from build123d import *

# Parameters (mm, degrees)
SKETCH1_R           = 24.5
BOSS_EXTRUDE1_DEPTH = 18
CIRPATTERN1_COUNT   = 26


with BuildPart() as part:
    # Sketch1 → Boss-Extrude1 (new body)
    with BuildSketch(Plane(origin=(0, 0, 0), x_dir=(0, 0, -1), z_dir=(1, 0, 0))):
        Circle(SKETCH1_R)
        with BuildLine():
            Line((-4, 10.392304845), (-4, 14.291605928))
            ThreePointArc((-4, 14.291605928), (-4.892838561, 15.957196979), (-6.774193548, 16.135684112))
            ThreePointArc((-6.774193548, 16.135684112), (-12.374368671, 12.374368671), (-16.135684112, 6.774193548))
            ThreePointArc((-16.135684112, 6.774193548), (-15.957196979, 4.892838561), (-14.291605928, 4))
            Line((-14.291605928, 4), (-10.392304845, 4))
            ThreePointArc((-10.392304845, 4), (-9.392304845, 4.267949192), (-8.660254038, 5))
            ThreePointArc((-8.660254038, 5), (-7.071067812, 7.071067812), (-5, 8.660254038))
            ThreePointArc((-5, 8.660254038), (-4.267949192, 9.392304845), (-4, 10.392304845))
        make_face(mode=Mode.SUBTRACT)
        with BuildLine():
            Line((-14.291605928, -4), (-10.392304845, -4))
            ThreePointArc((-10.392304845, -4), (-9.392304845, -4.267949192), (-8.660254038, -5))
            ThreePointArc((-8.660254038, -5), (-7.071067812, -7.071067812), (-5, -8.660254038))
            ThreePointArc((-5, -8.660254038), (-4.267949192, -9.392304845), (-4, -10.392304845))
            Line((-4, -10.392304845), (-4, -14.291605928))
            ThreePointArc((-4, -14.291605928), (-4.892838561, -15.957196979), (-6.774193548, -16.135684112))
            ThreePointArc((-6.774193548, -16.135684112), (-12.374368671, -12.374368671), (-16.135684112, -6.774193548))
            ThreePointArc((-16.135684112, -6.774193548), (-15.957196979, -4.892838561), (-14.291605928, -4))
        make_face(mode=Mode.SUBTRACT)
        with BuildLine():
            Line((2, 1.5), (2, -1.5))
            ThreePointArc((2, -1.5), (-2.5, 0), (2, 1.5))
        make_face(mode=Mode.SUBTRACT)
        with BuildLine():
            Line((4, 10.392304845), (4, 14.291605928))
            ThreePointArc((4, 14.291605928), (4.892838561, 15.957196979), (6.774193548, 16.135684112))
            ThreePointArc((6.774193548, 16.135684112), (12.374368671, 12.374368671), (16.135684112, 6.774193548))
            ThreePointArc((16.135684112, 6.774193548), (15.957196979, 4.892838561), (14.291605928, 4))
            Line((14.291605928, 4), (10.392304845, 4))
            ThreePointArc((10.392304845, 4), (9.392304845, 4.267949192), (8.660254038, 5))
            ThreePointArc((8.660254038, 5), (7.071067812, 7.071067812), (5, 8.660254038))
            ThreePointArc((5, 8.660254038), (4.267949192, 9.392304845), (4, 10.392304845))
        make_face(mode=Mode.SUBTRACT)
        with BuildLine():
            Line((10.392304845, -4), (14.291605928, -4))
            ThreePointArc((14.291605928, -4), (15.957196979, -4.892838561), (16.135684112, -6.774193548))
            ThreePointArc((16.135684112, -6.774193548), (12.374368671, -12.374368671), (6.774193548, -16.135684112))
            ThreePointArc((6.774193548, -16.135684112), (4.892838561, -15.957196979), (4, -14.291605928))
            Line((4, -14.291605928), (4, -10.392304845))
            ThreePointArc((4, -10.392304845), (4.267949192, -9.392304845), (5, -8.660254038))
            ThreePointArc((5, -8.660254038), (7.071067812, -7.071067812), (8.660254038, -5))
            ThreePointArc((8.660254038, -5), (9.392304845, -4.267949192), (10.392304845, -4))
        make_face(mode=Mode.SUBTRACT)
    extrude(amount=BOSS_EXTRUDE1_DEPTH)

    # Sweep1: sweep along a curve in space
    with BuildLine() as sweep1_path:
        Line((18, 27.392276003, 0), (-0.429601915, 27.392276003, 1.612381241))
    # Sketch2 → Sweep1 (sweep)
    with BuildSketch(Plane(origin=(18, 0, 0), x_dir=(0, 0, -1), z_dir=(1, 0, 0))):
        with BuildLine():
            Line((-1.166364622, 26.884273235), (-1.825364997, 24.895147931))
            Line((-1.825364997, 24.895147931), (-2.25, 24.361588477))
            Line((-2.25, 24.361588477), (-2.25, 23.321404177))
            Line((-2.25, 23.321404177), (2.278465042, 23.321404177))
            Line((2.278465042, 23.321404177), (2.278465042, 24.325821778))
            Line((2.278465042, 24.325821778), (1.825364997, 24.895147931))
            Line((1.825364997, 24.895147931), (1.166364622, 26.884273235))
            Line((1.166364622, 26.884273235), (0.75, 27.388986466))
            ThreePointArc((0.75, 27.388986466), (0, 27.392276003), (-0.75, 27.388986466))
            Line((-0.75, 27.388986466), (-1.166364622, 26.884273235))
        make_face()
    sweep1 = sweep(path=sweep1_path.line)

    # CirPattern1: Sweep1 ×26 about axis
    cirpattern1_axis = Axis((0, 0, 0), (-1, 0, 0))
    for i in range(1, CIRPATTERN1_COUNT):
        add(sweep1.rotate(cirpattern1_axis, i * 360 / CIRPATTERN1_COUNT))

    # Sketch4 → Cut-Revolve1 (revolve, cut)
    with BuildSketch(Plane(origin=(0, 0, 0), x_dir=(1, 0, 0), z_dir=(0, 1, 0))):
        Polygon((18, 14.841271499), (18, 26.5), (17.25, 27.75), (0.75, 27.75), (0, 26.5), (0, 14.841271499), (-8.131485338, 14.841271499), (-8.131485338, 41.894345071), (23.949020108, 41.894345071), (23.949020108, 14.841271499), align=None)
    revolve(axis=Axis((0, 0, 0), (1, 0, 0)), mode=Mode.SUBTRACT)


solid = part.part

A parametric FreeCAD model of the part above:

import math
import FreeCAD as App
import Part
import Sketcher
from FreeCAD import Vector


def add_polygon(sketch, points):
    """Adds a closed chain of lines whose ends are joined by coincident constraints."""
    first, n = sketch.GeometryCount, len(points)
    for a, b in zip(points, points[1:] + points[:1]):
        sketch.addGeometry(Part.LineSegment(App.Vector(*a, 0), App.Vector(*b, 0)), False)
    for i in range(n):
        sketch.addConstraint(Sketcher.Constraint("Coincident", first + i, 2, first + (i + 1) % n, 1))

doc = App.newDocument("Part")
body = doc.addObject("PartDesign::Body", "Body")

# Sketch on YZ plane
sketch1 = body.newObject("Sketcher::SketchObject", "Sketch")
sketch1.AttachmentSupport = (doc.getObject("YZ_Plane"), [""])
sketch1.MapMode = "FlatFace"
sketch1.addGeometry([
    Part.Circle(Vector(0, 0, 0), Vector(0, 0, 1), 24.5),  # 0
    Part.ArcOfCircle(Part.Circle(Vector(-6, 14.291606, 0), Vector(0, 0, 1), 2), math.radians(0), math.radians(112.773972)),  # 1
    Part.LineSegment(Vector(-4, 14.291606, 0), Vector(-4, 10.392305, 0)),  # 2
    Part.ArcOfCircle(Part.Circle(Vector(-6, 10.392305, 0), Vector(0, 0, 1), 2), math.radians(-60), math.radians(0)),  # 3
    Part.ArcOfCircle(Part.Circle(Vector(0, 0, 0), Vector(0, 0, 1), 10), math.radians(120), math.radians(150)),  # 4
    Part.ArcOfCircle(Part.Circle(Vector(-10.392305, 6, 0), Vector(0, 0, 1), 2), math.radians(-90), math.radians(-30)),  # 5
    Part.LineSegment(Vector(-10.392305, 4, 0), Vector(-14.291606, 4, 0)),  # 6
    Part.ArcOfCircle(Part.Circle(Vector(-14.291606, 6, 0), Vector(0, 0, 1), 2), math.radians(157.226028), math.radians(270)),  # 7
    Part.ArcOfCircle(Part.Circle(Vector(0, 0, 0), Vector(0, 0, 1), 17.5), math.radians(112.773972), math.radians(157.226028)),  # 8
    Part.ArcOfCircle(Part.Circle(Vector(-6, -10.392305, 0), Vector(0, 0, 1), 2), math.radians(0), math.radians(60)),  # 9
    Part.LineSegment(Vector(-4, -10.392305, 0), Vector(-4, -14.291606, 0)),  # 10
    Part.ArcOfCircle(Part.Circle(Vector(-6, -14.291606, 0), Vector(0, 0, 1), 2), math.radians(-112.773972), math.radians(0)),  # 11
    Part.ArcOfCircle(Part.Circle(Vector(0, 0, 0), Vector(0, 0, 1), 17.5), math.radians(-157.226028), math.radians(-112.773972)),  # 12
    Part.ArcOfCircle(Part.Circle(Vector(-14.291606, -6, 0), Vector(0, 0, 1), 2), math.radians(90), math.radians(202.773972)),  # 13
    Part.LineSegment(Vector(-14.291606, -4, 0), Vector(-10.392305, -4, 0)),  # 14
    Part.ArcOfCircle(Part.Circle(Vector(-10.392305, -6, 0), Vector(0, 0, 1), 2), math.radians(30), math.radians(90)),  # 15
    Part.ArcOfCircle(Part.Circle(Vector(0, 0, 0), Vector(0, 0, 1), 10), math.radians(-150), math.radians(-120)),  # 16
    Part.ArcOfCircle(Part.Circle(Vector(0, 0, 0), Vector(0, 0, 1), 2.5), math.radians(-53.130102), math.radians(233.130102)),  # 17
    Part.LineSegment(Vector(1.5, -2, 0), Vector(-1.5, -2, 0)),  # 18
    Part.LineSegment(Vector(14.291606, 4, 0), Vector(10.392305, 4, 0)),  # 19
    Part.ArcOfCircle(Part.Circle(Vector(10.392305, 6, 0), Vector(0, 0, 1), 2), math.radians(-150), math.radians(-90)),  # 20
    Part.ArcOfCircle(Part.Circle(Vector(0, 0, 0), Vector(0, 0, 1), 10), math.radians(30), math.radians(60)),  # 21
    Part.ArcOfCircle(Part.Circle(Vector(6, 10.392305, 0), Vector(0, 0, 1), 2), math.radians(180), math.radians(240)),  # 22
    Part.LineSegment(Vector(4, 10.392305, 0), Vector(4, 14.291606, 0)),  # 23
    Part.ArcOfCircle(Part.Circle(Vector(6, 14.291606, 0), Vector(0, 0, 1), 2), math.radians(67.226028), math.radians(180)),  # 24
    Part.ArcOfCircle(Part.Circle(Vector(0, 0, 0), Vector(0, 0, 1), 17.5), math.radians(22.773972), math.radians(67.226028)),  # 25
    Part.ArcOfCircle(Part.Circle(Vector(14.291606, 6, 0), Vector(0, 0, 1), 2), math.radians(-90), math.radians(22.773972)),  # 26
    Part.ArcOfCircle(Part.Circle(Vector(10.392305, -6, 0), Vector(0, 0, 1), 2), math.radians(90), math.radians(150)),  # 27
    Part.LineSegment(Vector(10.392305, -4, 0), Vector(14.291606, -4, 0)),  # 28
    Part.ArcOfCircle(Part.Circle(Vector(14.291606, -6, 0), Vector(0, 0, 1), 2), math.radians(-22.773972), math.radians(90)),  # 29
    Part.ArcOfCircle(Part.Circle(Vector(0, 0, 0), Vector(0, 0, 1), 17.5), math.radians(-67.226028), math.radians(-22.773972)),  # 30
    Part.ArcOfCircle(Part.Circle(Vector(6, -14.291606, 0), Vector(0, 0, 1), 2), math.radians(180), math.radians(292.773972)),  # 31
    Part.LineSegment(Vector(4, -14.291606, 0), Vector(4, -10.392305, 0)),  # 32
    Part.ArcOfCircle(Part.Circle(Vector(6, -10.392305, 0), Vector(0, 0, 1), 2), math.radians(120), math.radians(180)),  # 33
    Part.ArcOfCircle(Part.Circle(Vector(0, 0, 0), Vector(0, 0, 1), 10), math.radians(-60), math.radians(-30)),  # 34
], False)
sketch1.addConstraint([
    Sketcher.Constraint("Tangent", 1, 1, 2, 1),
    Sketcher.Constraint("Tangent", 2, 2, 3, 2),
    Sketcher.Constraint("Tangent", 3, 1, 4, 1),
    Sketcher.Constraint("Tangent", 4, 2, 5, 2),
    Sketcher.Constraint("Tangent", 5, 1, 6, 1),
    Sketcher.Constraint("Tangent", 6, 2, 7, 2),
    Sketcher.Constraint("Tangent", 7, 1, 8, 2),
    Sketcher.Constraint("Tangent", 8, 1, 1, 2),
    Sketcher.Constraint("Tangent", 9, 1, 10, 1),
    Sketcher.Constraint("Tangent", 10, 2, 11, 2),
    Sketcher.Constraint("Tangent", 11, 1, 12, 2),
    Sketcher.Constraint("Tangent", 12, 1, 13, 2),
    Sketcher.Constraint("Tangent", 13, 1, 14, 1),
    Sketcher.Constraint("Tangent", 14, 2, 15, 2),
    Sketcher.Constraint("Tangent", 15, 1, 16, 1),
    Sketcher.Constraint("Tangent", 16, 2, 9, 2),
    Sketcher.Constraint("Coincident", 17, 1, 18, 1),
    Sketcher.Constraint("Coincident", 18, 2, 17, 2),
    Sketcher.Constraint("Tangent", 19, 2, 20, 2),
    Sketcher.Constraint("Tangent", 20, 1, 21, 1),
    Sketcher.Constraint("Tangent", 21, 2, 22, 2),
    Sketcher.Constraint("Tangent", 22, 1, 23, 1),
    Sketcher.Constraint("Tangent", 23, 2, 24, 2),
    Sketcher.Constraint("Tangent", 24, 1, 25, 2),
    Sketcher.Constraint("Tangent", 25, 1, 26, 2),
    Sketcher.Constraint("Tangent", 26, 1, 19, 1),
    Sketcher.Constraint("Tangent", 27, 1, 28, 1),
    Sketcher.Constraint("Tangent", 28, 2, 29, 2),
    Sketcher.Constraint("Tangent", 29, 1, 30, 2),
    Sketcher.Constraint("Tangent", 30, 1, 31, 2),
    Sketcher.Constraint("Tangent", 31, 1, 32, 1),
    Sketcher.Constraint("Tangent", 32, 2, 33, 2),
    Sketcher.Constraint("Tangent", 33, 1, 34, 1),
    Sketcher.Constraint("Tangent", 34, 2, 27, 2),
    Sketcher.Constraint("Vertical", 2),
    Sketcher.Constraint("Horizontal", 6),
    Sketcher.Constraint("Vertical", 10),
    Sketcher.Constraint("Horizontal", 14),
    Sketcher.Constraint("Horizontal", 18),
    Sketcher.Constraint("Horizontal", 19),
    Sketcher.Constraint("Vertical", 23),
    Sketcher.Constraint("Horizontal", 28),
    Sketcher.Constraint("Vertical", 32),
    Sketcher.Constraint("Coincident", 0, 3, -1, 1),
    Sketcher.Constraint("Coincident", 4, 3, -1, 1),
    Sketcher.Constraint("Coincident", 8, 3, -1, 1),
    Sketcher.Constraint("Coincident", 12, 3, -1, 1),
    Sketcher.Constraint("Coincident", 16, 3, -1, 1),
    Sketcher.Constraint("Coincident", 17, 3, -1, 1),
    Sketcher.Constraint("Coincident", 21, 3, -1, 1),
    Sketcher.Constraint("Coincident", 25, 3, -1, 1),
    Sketcher.Constraint("Coincident", 30, 3, -1, 1),
    Sketcher.Constraint("Coincident", 34, 3, -1, 1),
    Sketcher.Constraint("Equal", 1, 3),
    Sketcher.Constraint("Equal", 3, 5),
    Sketcher.Constraint("Equal", 5, 7),
    Sketcher.Constraint("Equal", 7, 9),
    Sketcher.Constraint("Equal", 9, 11),
    Sketcher.Constraint("Equal", 8, 12),
    Sketcher.Constraint("Equal", 11, 13),
    Sketcher.Constraint("Equal", 13, 15),
    Sketcher.Constraint("Equal", 4, 16),
    Sketcher.Constraint("Equal", 15, 20),
    Sketcher.Constraint("Equal", 16, 21),
    Sketcher.Constraint("Equal", 20, 22),
    Sketcher.Constraint("Equal", 22, 24),
    Sketcher.Constraint("Equal", 12, 25),
    Sketcher.Constraint("Equal", 24, 26),
    Sketcher.Constraint("Equal", 26, 27),
    Sketcher.Constraint("Equal", 27, 29),
    Sketcher.Constraint("Equal", 25, 30),
    Sketcher.Constraint("Equal", 29, 31),
    Sketcher.Constraint("Equal", 31, 33),
    Sketcher.Constraint("Equal", 21, 34),
    Sketcher.Constraint("Horizontal", 7, 3, 20, 3),
    Sketcher.Constraint("Horizontal", 3, 3, 22, 3),
    Sketcher.Constraint("Horizontal", 15, 3, 27, 3),
    Sketcher.Constraint("Horizontal", 11, 3, 31, 3),
    Sketcher.Constraint("Vertical", 3, 3, 9, 3),
    Sketcher.Constraint("Vertical", 7, 3, 13, 3),
    Sketcher.Constraint("Equal", 28, 2),
    Sketcher.Constraint("Diameter", 0, 49.0),
    Sketcher.Constraint("Radius", 1, 2.0),
    Sketcher.Constraint("Radius", 4, 10.0),
    Sketcher.Constraint("Radius", 8, 17.5),
    Sketcher.Constraint("Radius", 17, 2.5),
    Sketcher.Constraint("DistanceX", 18, 2, 18, 1, 3.0),
    Sketcher.Constraint("DistanceX", 1, 3, -1, 1, 6.0),
])
pad1 = body.newObject("PartDesign::Pad", "Pad")
pad1.Profile = sketch1
pad1.Length = 18

# Sketch on YZ plane
sketch2 = body.newObject("Sketcher::SketchObject", "Sketch001")
sketch2.AttachmentSupport = (doc.getObject("YZ_Plane"), [""])
sketch2.MapMode = "FlatFace"
sketch2.AttachmentOffset = App.Placement(Vector(0, 0, 18), App.Rotation())
sketch2.addGeometry([
    Part.LineSegment(Vector(26.884273, 1.166365, 0), Vector(24.895148, 1.825365, 0)),  # 0
    Part.LineSegment(Vector(24.895148, 1.825365, 0), Vector(24.361588, 2.25, 0)),  # 1
    Part.LineSegment(Vector(24.361588, 2.25, 0), Vector(23.321404, 2.25, 0)),  # 2
    Part.LineSegment(Vector(23.321404, 2.25, 0), Vector(23.321404, -2.278465, 0)),  # 3
    Part.LineSegment(Vector(23.321404, -2.278465, 0), Vector(24.325822, -2.278465, 0)),  # 4
    Part.LineSegment(Vector(24.325822, -2.278465, 0), Vector(24.895148, -1.825365, 0)),  # 5
    Part.LineSegment(Vector(24.895148, -1.825365, 0), Vector(26.884273, -1.166365, 0)),  # 6
    Part.LineSegment(Vector(26.884273, -1.166365, 0), Vector(27.388986, -0.75, 0)),  # 7
    Part.ArcOfCircle(Part.Circle(Vector(-58.107723, 0, 0), Vector(0, 0, 1), 85.499999), math.radians(-0.502601), math.radians(0.502601)),  # 8
    Part.LineSegment(Vector(27.388986, 0.75, 0), Vector(26.884273, 1.166365, 0)),  # 9
], False)
sketch2.addConstraint([
    Sketcher.Constraint("Coincident", 0, 2, 1, 1),
    Sketcher.Constraint("Coincident", 1, 2, 2, 1),
    Sketcher.Constraint("Coincident", 2, 2, 3, 1),
    Sketcher.Constraint("Coincident", 3, 2, 4, 1),
    Sketcher.Constraint("Coincident", 4, 2, 5, 1),
    Sketcher.Constraint("Coincident", 5, 2, 6, 1),
    Sketcher.Constraint("Coincident", 6, 2, 7, 1),
    Sketcher.Constraint("Coincident", 7, 2, 8, 1),
    Sketcher.Constraint("Coincident", 8, 2, 9, 1),
    Sketcher.Constraint("Coincident", 9, 2, 0, 1),
    Sketcher.Constraint("Horizontal", 2),
    Sketcher.Constraint("Vertical", 3),
    Sketcher.Constraint("Horizontal", 4),
    Sketcher.Constraint("Symmetric", 0, 2, 5, 2, -1),
    Sketcher.Constraint("Symmetric", 7, 2, 8, 2, -1),
    Sketcher.Constraint("Symmetric", 6, 2, 9, 2, -1),
    Sketcher.Constraint("Radius", 8, 85.499999),
    Sketcher.Constraint("DistanceY", 7, 2, 1, 2, 3.0),
    Sketcher.Constraint("DistanceY", 7, 2, 8, 2, 1.5),
    Sketcher.Constraint("DistanceY", 5, 2, 6, 2, 0.659),
    Sketcher.Constraint("DistanceY", 4, 2, 5, 2, 0.4531),
    Sketcher.Constraint("Distance", 1, 0.68191),
    Sketcher.Constraint("Distance", 5, 0.727621),
    Sketcher.Constraint("Distance", 7, 0.65429),
    Sketcher.Constraint("DistanceX", 2, 2, 2, 1, 1.040184),
    Sketcher.Constraint("DistanceX", 4, 1, 4, 2, 1.004418),
    Sketcher.Constraint("DistanceX", -1, 1, 1, 2, 24.361588),
    Sketcher.Constraint("DistanceX", 8, 3, 0, 2, 83.002871),
])

# Sketch on an angled plane
sketch3 = body.newObject("Sketcher::SketchObject", "Sketch002")
sketch3.Placement = App.Placement(Vector(0.13673, 0, 1.562834), App.Rotation(Vector(-0.996194698, 0, 0.087155743), Vector(0, 1, 0), Vector(-0.087155743, 0, -0.996194698), "ZXY"))
sketch3.addGeometry(Part.LineSegment(Vector(-17.931505, 27.392276, 0), Vector(0.568495, 27.392276, 0)), False)
sketch3.addConstraint([
    Sketcher.Constraint("Horizontal", 0),
    Sketcher.Constraint("DistanceX", 0, 1, 0, 2, 18.5),
    Sketcher.Constraint("DistanceX", 0, 1, -1, 1, 17.931505),
    Sketcher.Constraint("DistanceY", -1, 1, 0, 1, 27.392276),
])
doc.recompute()

additivepipe = body.newObject("PartDesign::AdditivePipe", "AdditivePipe")
additivepipe.Profile = sketch2
additivepipe.Spine = (sketch3, ["Edge1"])
doc.recompute()

polarpattern = body.newObject("PartDesign::PolarPattern", "PolarPattern")
polarpattern.Originals = [additivepipe]
polarpattern.Axis = (doc.getObject("X_Axis"), [""])
polarpattern.Angle = 360
polarpattern.Occurrences = 26
body.Tip = polarpattern

# Sketch on XZ plane
sketch4 = body.newObject("Sketcher::SketchObject", "Sketch003")
sketch4.AttachmentSupport = (doc.getObject("XZ_Plane"), [""])
sketch4.MapMode = "FlatFace"
add_polygon(sketch4, [(18, -26.5), (18, -14.841271), (23.94902, -14.841271), (23.94902, -41.894345), (-8.131485, -41.894345), (-8.131485, -14.841271), (0, -14.841271), (0, -26.5), (0.75, -27.75), (17.25, -27.75)])  # lines 0-9
sketch4.addConstraint([
    Sketcher.Constraint("Vertical", 0),
    Sketcher.Constraint("Horizontal", 1),
    Sketcher.Constraint("Vertical", 2),
    Sketcher.Constraint("Horizontal", 3),
    Sketcher.Constraint("Vertical", 4),
    Sketcher.Constraint("Horizontal", 5),
    Sketcher.Constraint("Vertical", 6),
    Sketcher.Constraint("Horizontal", 8),
    Sketcher.Constraint("PointOnObject", 5, 2, -2),
    Sketcher.Constraint("Horizontal", 1, 2, 4, 2),
    Sketcher.Constraint("Horizontal", 6, 2, 9, 2),
    Sketcher.Constraint("Equal", 7, 9),
    Sketcher.Constraint("DistanceX", 8, 1, 8, 2, 16.5),
    Sketcher.Constraint("DistanceX", -1, 1, 0, 2, 18.0),
    Sketcher.Constraint("DistanceY", 6, 2, -1, 1, 26.5),
    Sketcher.Constraint("DistanceY", 7, 2, -1, 1, 27.75),
    Sketcher.Constraint("DistanceX", 1, 1, 1, 2, 5.94902),
    Sketcher.Constraint("DistanceY", 0, 1, 0, 2, 11.658729),
    Sketcher.Constraint("DistanceX", 3, 2, 3, 1, 32.080505),
    Sketcher.Constraint("DistanceY", 2, 2, 2, 1, 27.053074),
])
groove = body.newObject("PartDesign::Groove", "Groove")
groove.Profile = sketch4
groove.ReferenceAxis = (sketch4, ["H_Axis"])
groove.Angle = 360

doc.recompute()
